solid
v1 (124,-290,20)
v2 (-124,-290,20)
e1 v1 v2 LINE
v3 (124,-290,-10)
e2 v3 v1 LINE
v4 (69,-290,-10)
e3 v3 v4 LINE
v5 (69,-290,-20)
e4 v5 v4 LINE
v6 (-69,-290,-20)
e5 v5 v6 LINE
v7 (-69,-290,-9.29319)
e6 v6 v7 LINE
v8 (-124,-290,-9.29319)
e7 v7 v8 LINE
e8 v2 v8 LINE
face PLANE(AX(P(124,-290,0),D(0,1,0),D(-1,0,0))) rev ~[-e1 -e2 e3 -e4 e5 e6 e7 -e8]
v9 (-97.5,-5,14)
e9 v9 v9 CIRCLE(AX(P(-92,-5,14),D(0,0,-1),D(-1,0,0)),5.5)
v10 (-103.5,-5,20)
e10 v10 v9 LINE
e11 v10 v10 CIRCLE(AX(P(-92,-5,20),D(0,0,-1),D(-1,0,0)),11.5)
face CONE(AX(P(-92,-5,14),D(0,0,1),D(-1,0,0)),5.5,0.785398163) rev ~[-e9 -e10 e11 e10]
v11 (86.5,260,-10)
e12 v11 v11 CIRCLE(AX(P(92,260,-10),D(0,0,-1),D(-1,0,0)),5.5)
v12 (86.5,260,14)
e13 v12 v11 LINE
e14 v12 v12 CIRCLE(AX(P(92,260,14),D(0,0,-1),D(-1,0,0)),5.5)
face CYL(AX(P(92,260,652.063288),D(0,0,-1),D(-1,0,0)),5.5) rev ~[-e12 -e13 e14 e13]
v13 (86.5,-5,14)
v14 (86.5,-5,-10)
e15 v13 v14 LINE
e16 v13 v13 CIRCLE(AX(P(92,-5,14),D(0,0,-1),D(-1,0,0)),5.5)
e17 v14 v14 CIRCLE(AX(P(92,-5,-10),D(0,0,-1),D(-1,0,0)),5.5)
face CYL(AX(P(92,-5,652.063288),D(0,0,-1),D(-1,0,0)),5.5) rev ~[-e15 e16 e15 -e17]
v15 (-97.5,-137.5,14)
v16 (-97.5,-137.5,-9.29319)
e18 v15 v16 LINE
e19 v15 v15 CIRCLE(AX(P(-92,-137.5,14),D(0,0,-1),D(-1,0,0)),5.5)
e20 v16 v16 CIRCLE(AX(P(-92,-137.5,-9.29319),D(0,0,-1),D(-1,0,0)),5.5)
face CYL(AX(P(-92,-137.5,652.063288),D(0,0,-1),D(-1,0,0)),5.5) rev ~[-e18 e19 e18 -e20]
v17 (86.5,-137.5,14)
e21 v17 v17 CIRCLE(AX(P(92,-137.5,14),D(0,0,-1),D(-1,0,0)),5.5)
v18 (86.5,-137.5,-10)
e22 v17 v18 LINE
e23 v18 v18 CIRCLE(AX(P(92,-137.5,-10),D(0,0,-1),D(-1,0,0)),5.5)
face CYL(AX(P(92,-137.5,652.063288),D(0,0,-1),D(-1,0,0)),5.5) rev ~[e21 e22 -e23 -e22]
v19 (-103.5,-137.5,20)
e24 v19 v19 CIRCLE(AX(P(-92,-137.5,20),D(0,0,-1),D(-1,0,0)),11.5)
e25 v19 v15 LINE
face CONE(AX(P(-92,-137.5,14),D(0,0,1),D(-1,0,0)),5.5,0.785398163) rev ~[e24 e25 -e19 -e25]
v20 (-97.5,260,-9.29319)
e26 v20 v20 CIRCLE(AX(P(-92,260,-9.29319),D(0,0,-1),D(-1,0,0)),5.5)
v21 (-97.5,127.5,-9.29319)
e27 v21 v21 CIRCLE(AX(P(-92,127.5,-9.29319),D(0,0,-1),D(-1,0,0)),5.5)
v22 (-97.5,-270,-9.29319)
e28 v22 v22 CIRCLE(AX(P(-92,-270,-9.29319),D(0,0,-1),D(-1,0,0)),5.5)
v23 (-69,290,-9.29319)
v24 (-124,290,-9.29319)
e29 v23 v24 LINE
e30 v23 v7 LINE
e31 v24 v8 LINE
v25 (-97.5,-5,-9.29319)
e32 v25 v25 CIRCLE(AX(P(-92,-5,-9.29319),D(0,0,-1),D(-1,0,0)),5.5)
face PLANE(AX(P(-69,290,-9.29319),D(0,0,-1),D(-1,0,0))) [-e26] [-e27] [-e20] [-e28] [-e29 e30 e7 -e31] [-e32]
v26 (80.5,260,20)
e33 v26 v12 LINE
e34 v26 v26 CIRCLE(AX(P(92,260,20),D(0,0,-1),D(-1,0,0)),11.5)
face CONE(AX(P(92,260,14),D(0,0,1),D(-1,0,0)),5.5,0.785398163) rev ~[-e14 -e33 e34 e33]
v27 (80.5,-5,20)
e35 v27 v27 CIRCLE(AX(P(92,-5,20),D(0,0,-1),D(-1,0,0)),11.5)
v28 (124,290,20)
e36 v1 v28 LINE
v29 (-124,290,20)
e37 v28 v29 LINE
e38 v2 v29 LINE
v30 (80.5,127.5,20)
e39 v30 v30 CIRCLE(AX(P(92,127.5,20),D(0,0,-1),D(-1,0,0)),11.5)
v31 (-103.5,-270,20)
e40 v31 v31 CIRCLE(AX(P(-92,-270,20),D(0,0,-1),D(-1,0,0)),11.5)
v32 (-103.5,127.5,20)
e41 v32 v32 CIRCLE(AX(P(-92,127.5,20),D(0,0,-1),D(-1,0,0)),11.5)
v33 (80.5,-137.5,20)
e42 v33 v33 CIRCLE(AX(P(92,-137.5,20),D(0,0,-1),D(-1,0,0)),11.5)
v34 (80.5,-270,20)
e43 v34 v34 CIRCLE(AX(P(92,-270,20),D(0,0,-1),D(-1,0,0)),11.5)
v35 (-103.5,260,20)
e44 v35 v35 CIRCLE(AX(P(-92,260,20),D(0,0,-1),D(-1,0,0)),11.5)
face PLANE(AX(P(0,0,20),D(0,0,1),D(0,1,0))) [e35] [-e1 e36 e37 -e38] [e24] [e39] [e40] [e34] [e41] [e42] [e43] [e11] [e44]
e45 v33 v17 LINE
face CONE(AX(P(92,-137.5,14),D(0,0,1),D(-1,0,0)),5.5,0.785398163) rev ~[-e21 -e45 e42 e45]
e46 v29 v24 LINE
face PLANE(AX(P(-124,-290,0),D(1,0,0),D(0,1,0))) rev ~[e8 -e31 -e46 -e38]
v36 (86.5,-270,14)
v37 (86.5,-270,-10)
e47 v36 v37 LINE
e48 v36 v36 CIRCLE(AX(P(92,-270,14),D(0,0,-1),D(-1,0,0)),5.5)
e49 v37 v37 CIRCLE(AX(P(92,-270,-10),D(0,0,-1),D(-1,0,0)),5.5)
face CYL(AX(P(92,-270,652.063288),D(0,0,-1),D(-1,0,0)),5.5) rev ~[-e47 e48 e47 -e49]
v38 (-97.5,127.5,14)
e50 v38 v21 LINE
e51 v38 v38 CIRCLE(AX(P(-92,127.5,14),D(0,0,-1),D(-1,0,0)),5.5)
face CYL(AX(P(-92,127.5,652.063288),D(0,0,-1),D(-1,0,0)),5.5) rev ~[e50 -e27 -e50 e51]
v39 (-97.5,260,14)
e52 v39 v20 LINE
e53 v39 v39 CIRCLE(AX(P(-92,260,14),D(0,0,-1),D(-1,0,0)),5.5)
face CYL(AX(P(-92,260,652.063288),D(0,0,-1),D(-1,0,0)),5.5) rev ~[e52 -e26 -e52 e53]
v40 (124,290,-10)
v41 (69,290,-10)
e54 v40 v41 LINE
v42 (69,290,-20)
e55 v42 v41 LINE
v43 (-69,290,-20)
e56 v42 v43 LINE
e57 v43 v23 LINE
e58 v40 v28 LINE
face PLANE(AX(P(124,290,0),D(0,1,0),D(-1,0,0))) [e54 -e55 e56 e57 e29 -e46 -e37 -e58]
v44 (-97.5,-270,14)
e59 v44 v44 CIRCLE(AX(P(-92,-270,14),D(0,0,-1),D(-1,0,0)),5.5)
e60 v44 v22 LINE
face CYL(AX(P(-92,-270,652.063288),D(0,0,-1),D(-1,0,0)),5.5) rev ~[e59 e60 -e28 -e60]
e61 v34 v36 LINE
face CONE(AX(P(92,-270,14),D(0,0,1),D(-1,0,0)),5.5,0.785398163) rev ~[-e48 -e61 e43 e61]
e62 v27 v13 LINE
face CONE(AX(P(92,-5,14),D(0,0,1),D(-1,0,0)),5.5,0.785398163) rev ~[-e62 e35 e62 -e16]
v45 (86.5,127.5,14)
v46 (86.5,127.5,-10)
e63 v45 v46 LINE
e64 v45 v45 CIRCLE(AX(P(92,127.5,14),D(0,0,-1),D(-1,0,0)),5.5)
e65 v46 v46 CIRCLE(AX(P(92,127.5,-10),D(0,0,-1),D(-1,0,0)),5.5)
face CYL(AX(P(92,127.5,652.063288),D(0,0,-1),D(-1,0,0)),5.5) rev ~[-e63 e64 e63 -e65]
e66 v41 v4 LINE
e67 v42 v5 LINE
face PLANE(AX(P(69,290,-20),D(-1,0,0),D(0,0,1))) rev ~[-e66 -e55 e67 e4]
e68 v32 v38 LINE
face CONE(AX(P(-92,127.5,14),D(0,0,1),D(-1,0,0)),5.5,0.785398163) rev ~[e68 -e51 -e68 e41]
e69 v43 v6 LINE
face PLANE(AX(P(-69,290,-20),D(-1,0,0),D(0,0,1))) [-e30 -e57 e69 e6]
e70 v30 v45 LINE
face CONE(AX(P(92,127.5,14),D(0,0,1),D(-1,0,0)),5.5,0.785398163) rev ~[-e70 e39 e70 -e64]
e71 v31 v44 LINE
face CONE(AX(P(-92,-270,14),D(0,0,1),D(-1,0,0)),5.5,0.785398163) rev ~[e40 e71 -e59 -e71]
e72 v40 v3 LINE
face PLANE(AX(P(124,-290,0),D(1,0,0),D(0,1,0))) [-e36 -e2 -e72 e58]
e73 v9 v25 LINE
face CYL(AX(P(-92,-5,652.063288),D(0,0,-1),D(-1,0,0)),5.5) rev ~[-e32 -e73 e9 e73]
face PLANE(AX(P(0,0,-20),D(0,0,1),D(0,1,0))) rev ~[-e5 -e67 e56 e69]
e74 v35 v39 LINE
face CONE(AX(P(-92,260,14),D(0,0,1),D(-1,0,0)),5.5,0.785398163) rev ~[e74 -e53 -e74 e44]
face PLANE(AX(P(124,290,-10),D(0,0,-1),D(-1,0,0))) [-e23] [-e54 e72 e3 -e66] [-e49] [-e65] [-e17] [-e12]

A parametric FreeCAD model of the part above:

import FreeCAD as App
import Part
import Sketcher
from FreeCAD import Vector


def edges_at(feature, points):
    """Names of the edges that pass closest to the given points."""
    edges = feature.Shape.Edges
    near = lambda p: min(range(len(edges)), key=lambda i: edges[i].distToShape(Part.Vertex(*p))[0])
    return sorted({f"Edge{near(p) + 1}" for p in points})


def add_polygon(sketch, points):
    """Adds a closed chain of lines whose ends are joined by coincident constraints."""
    first, n = sketch.GeometryCount, len(points)
    for a, b in zip(points, points[1:] + points[:1]):
        sketch.addGeometry(Part.LineSegment(App.Vector(*a, 0), App.Vector(*b, 0)), False)
    for i in range(n):
        sketch.addConstraint(Sketcher.Constraint("Coincident", first + i, 2, first + (i + 1) % n, 1))

doc = App.newDocument("Part")
body = doc.addObject("PartDesign::Body", "Body")

# Sketch on XY plane
sketch1 = body.newObject("Sketcher::SketchObject", "Sketch")
sketch1.AttachmentSupport = (doc.getObject("XY_Plane"), [""])
sketch1.MapMode = "FlatFace"
add_polygon(sketch1, [(-124, -290), (124, -290), (124, 290), (-124, 290)])  # lines 0-3
sketch1.addConstraint([
    Sketcher.Constraint("Horizontal", 0),
    Sketcher.Constraint("Vertical", 1),
    Sketcher.Constraint("Horizontal", 2),
    Sketcher.Constraint("Vertical", 3),
    Sketcher.Constraint("Symmetric", 0, 2, 2, 2, -1, 1),
    Sketcher.Constraint("DistanceX", 0, 1, 0, 2, 248.0),
    Sketcher.Constraint("DistanceY", 1, 1, 1, 2, 580.0),
])
pad1 = body.newObject("PartDesign::Pad", "Pad")
pad1.Profile = sketch1
pad1.Length = 40
pad1.Midplane = True

# Sketch on XZ plane
sketch2 = body.newObject("Sketcher::SketchObject", "Sketch001")
sketch2.AttachmentSupport = (doc.getObject("XZ_Plane"), [""])
sketch2.MapMode = "FlatFace"
sketch2.AttachmentOffset = App.Placement(Vector(0, 0, -290), App.Rotation())
add_polygon(sketch2, [(-69, -9.29319), (-69, -20), (-124, -20), (-124, -9.29319)])  # lines 0-3
add_polygon(sketch2, [(124, -10), (124, -20), (69, -20), (69, -10)])  # lines 4-7
sketch2.addConstraint([
    Sketcher.Constraint("Vertical", 0),
    Sketcher.Constraint("Horizontal", 1),
    Sketcher.Constraint("Vertical", 2),
    Sketcher.Constraint("Horizontal", 3),
    Sketcher.Constraint("Vertical", 4),
    Sketcher.Constraint("Horizontal", 5),
    Sketcher.Constraint("Vertical", 6),
    Sketcher.Constraint("Horizontal", 7),
    Sketcher.Constraint("Symmetric", 1, 2, 4, 2, -2),
    Sketcher.Constraint("Equal", 3, 5),
    Sketcher.Constraint("DistanceX", 1, 2, 1, 1, 55.0),
    Sketcher.Constraint("DistanceY", 4, 2, 4, 1, 10.0),
    Sketcher.Constraint("DistanceX", 0, 2, -1, 1, 69.0),
    Sketcher.Constraint("DistanceY", 0, 2, -1, 1, 20.0),
    Sketcher.Constraint("DistanceY", 0, 2, 0, 1, 10.70681),
])
pocket1 = body.newObject("PartDesign::Pocket", "Pocket")
pocket1.Profile = sketch2
pocket1.Type = "ThroughAll"
pocket1.Reversed = True

# Sketch on XY plane
sketch3 = body.newObject("Sketcher::SketchObject", "Sketch002")
sketch3.AttachmentSupport = (doc.getObject("XY_Plane"), [""])
sketch3.MapMode = "FlatFace"
sketch3.AttachmentOffset = App.Placement(Vector(0, 0, 20), App.Rotation())
sketch3.addGeometry([
    Part.Circle(Vector(-92, -270, 0), Vector(0, 0, 1), 5.5),
    Part.Circle(Vector(92, -270, 0), Vector(0, 0, 1), 5.5),
], False)
sketch3.addConstraint([
    Sketcher.Constraint("Equal", 0, 1),
    Sketcher.Constraint("Symmetric", 0, 3, 1, 3, -2),
    Sketcher.Constraint("Diameter", 0, 11.0),
    Sketcher.Constraint("DistanceX", 0, 3, -1, 1, 92.0),
    Sketcher.Constraint("DistanceY", 0, 3, -1, 1, 270.0),
])
doc.recompute()
hole = body.newObject("PartDesign::Hole", "Hole")
hole.Profile = sketch3
hole.ThreadType = "None"
hole.Diameter = 11
hole.DepthType = "ThroughAll"
doc.recompute()

linearpattern = body.newObject("PartDesign::LinearPattern", "LinearPattern")
linearpattern.Originals = [hole]
linearpattern.Direction = (doc.getObject("Y_Axis"), [""])
linearpattern.Mode = "offset"
linearpattern.Offset = 132.5
linearpattern.Occurrences = 5
body.Tip = linearpattern
doc.recompute()

chamfer = body.newObject("PartDesign::Chamfer", "Chamfer")
chamfer.Base = (linearpattern, edges_at(linearpattern, [
    (97.5, -270, 20),
    (-86.5, -270, 20),
    (97.5, -137.5, 20),
    (-86.5, -137.5, 20),
    (97.5, -5, 20),
    (-86.5, -5, 20),
    (97.5, 127.5, 20),
    (-86.5, 127.5, 20),
    (97.5, 260, 20),
    (-86.5, 260, 20),
]))
chamfer.Size = 6

doc.recompute()
